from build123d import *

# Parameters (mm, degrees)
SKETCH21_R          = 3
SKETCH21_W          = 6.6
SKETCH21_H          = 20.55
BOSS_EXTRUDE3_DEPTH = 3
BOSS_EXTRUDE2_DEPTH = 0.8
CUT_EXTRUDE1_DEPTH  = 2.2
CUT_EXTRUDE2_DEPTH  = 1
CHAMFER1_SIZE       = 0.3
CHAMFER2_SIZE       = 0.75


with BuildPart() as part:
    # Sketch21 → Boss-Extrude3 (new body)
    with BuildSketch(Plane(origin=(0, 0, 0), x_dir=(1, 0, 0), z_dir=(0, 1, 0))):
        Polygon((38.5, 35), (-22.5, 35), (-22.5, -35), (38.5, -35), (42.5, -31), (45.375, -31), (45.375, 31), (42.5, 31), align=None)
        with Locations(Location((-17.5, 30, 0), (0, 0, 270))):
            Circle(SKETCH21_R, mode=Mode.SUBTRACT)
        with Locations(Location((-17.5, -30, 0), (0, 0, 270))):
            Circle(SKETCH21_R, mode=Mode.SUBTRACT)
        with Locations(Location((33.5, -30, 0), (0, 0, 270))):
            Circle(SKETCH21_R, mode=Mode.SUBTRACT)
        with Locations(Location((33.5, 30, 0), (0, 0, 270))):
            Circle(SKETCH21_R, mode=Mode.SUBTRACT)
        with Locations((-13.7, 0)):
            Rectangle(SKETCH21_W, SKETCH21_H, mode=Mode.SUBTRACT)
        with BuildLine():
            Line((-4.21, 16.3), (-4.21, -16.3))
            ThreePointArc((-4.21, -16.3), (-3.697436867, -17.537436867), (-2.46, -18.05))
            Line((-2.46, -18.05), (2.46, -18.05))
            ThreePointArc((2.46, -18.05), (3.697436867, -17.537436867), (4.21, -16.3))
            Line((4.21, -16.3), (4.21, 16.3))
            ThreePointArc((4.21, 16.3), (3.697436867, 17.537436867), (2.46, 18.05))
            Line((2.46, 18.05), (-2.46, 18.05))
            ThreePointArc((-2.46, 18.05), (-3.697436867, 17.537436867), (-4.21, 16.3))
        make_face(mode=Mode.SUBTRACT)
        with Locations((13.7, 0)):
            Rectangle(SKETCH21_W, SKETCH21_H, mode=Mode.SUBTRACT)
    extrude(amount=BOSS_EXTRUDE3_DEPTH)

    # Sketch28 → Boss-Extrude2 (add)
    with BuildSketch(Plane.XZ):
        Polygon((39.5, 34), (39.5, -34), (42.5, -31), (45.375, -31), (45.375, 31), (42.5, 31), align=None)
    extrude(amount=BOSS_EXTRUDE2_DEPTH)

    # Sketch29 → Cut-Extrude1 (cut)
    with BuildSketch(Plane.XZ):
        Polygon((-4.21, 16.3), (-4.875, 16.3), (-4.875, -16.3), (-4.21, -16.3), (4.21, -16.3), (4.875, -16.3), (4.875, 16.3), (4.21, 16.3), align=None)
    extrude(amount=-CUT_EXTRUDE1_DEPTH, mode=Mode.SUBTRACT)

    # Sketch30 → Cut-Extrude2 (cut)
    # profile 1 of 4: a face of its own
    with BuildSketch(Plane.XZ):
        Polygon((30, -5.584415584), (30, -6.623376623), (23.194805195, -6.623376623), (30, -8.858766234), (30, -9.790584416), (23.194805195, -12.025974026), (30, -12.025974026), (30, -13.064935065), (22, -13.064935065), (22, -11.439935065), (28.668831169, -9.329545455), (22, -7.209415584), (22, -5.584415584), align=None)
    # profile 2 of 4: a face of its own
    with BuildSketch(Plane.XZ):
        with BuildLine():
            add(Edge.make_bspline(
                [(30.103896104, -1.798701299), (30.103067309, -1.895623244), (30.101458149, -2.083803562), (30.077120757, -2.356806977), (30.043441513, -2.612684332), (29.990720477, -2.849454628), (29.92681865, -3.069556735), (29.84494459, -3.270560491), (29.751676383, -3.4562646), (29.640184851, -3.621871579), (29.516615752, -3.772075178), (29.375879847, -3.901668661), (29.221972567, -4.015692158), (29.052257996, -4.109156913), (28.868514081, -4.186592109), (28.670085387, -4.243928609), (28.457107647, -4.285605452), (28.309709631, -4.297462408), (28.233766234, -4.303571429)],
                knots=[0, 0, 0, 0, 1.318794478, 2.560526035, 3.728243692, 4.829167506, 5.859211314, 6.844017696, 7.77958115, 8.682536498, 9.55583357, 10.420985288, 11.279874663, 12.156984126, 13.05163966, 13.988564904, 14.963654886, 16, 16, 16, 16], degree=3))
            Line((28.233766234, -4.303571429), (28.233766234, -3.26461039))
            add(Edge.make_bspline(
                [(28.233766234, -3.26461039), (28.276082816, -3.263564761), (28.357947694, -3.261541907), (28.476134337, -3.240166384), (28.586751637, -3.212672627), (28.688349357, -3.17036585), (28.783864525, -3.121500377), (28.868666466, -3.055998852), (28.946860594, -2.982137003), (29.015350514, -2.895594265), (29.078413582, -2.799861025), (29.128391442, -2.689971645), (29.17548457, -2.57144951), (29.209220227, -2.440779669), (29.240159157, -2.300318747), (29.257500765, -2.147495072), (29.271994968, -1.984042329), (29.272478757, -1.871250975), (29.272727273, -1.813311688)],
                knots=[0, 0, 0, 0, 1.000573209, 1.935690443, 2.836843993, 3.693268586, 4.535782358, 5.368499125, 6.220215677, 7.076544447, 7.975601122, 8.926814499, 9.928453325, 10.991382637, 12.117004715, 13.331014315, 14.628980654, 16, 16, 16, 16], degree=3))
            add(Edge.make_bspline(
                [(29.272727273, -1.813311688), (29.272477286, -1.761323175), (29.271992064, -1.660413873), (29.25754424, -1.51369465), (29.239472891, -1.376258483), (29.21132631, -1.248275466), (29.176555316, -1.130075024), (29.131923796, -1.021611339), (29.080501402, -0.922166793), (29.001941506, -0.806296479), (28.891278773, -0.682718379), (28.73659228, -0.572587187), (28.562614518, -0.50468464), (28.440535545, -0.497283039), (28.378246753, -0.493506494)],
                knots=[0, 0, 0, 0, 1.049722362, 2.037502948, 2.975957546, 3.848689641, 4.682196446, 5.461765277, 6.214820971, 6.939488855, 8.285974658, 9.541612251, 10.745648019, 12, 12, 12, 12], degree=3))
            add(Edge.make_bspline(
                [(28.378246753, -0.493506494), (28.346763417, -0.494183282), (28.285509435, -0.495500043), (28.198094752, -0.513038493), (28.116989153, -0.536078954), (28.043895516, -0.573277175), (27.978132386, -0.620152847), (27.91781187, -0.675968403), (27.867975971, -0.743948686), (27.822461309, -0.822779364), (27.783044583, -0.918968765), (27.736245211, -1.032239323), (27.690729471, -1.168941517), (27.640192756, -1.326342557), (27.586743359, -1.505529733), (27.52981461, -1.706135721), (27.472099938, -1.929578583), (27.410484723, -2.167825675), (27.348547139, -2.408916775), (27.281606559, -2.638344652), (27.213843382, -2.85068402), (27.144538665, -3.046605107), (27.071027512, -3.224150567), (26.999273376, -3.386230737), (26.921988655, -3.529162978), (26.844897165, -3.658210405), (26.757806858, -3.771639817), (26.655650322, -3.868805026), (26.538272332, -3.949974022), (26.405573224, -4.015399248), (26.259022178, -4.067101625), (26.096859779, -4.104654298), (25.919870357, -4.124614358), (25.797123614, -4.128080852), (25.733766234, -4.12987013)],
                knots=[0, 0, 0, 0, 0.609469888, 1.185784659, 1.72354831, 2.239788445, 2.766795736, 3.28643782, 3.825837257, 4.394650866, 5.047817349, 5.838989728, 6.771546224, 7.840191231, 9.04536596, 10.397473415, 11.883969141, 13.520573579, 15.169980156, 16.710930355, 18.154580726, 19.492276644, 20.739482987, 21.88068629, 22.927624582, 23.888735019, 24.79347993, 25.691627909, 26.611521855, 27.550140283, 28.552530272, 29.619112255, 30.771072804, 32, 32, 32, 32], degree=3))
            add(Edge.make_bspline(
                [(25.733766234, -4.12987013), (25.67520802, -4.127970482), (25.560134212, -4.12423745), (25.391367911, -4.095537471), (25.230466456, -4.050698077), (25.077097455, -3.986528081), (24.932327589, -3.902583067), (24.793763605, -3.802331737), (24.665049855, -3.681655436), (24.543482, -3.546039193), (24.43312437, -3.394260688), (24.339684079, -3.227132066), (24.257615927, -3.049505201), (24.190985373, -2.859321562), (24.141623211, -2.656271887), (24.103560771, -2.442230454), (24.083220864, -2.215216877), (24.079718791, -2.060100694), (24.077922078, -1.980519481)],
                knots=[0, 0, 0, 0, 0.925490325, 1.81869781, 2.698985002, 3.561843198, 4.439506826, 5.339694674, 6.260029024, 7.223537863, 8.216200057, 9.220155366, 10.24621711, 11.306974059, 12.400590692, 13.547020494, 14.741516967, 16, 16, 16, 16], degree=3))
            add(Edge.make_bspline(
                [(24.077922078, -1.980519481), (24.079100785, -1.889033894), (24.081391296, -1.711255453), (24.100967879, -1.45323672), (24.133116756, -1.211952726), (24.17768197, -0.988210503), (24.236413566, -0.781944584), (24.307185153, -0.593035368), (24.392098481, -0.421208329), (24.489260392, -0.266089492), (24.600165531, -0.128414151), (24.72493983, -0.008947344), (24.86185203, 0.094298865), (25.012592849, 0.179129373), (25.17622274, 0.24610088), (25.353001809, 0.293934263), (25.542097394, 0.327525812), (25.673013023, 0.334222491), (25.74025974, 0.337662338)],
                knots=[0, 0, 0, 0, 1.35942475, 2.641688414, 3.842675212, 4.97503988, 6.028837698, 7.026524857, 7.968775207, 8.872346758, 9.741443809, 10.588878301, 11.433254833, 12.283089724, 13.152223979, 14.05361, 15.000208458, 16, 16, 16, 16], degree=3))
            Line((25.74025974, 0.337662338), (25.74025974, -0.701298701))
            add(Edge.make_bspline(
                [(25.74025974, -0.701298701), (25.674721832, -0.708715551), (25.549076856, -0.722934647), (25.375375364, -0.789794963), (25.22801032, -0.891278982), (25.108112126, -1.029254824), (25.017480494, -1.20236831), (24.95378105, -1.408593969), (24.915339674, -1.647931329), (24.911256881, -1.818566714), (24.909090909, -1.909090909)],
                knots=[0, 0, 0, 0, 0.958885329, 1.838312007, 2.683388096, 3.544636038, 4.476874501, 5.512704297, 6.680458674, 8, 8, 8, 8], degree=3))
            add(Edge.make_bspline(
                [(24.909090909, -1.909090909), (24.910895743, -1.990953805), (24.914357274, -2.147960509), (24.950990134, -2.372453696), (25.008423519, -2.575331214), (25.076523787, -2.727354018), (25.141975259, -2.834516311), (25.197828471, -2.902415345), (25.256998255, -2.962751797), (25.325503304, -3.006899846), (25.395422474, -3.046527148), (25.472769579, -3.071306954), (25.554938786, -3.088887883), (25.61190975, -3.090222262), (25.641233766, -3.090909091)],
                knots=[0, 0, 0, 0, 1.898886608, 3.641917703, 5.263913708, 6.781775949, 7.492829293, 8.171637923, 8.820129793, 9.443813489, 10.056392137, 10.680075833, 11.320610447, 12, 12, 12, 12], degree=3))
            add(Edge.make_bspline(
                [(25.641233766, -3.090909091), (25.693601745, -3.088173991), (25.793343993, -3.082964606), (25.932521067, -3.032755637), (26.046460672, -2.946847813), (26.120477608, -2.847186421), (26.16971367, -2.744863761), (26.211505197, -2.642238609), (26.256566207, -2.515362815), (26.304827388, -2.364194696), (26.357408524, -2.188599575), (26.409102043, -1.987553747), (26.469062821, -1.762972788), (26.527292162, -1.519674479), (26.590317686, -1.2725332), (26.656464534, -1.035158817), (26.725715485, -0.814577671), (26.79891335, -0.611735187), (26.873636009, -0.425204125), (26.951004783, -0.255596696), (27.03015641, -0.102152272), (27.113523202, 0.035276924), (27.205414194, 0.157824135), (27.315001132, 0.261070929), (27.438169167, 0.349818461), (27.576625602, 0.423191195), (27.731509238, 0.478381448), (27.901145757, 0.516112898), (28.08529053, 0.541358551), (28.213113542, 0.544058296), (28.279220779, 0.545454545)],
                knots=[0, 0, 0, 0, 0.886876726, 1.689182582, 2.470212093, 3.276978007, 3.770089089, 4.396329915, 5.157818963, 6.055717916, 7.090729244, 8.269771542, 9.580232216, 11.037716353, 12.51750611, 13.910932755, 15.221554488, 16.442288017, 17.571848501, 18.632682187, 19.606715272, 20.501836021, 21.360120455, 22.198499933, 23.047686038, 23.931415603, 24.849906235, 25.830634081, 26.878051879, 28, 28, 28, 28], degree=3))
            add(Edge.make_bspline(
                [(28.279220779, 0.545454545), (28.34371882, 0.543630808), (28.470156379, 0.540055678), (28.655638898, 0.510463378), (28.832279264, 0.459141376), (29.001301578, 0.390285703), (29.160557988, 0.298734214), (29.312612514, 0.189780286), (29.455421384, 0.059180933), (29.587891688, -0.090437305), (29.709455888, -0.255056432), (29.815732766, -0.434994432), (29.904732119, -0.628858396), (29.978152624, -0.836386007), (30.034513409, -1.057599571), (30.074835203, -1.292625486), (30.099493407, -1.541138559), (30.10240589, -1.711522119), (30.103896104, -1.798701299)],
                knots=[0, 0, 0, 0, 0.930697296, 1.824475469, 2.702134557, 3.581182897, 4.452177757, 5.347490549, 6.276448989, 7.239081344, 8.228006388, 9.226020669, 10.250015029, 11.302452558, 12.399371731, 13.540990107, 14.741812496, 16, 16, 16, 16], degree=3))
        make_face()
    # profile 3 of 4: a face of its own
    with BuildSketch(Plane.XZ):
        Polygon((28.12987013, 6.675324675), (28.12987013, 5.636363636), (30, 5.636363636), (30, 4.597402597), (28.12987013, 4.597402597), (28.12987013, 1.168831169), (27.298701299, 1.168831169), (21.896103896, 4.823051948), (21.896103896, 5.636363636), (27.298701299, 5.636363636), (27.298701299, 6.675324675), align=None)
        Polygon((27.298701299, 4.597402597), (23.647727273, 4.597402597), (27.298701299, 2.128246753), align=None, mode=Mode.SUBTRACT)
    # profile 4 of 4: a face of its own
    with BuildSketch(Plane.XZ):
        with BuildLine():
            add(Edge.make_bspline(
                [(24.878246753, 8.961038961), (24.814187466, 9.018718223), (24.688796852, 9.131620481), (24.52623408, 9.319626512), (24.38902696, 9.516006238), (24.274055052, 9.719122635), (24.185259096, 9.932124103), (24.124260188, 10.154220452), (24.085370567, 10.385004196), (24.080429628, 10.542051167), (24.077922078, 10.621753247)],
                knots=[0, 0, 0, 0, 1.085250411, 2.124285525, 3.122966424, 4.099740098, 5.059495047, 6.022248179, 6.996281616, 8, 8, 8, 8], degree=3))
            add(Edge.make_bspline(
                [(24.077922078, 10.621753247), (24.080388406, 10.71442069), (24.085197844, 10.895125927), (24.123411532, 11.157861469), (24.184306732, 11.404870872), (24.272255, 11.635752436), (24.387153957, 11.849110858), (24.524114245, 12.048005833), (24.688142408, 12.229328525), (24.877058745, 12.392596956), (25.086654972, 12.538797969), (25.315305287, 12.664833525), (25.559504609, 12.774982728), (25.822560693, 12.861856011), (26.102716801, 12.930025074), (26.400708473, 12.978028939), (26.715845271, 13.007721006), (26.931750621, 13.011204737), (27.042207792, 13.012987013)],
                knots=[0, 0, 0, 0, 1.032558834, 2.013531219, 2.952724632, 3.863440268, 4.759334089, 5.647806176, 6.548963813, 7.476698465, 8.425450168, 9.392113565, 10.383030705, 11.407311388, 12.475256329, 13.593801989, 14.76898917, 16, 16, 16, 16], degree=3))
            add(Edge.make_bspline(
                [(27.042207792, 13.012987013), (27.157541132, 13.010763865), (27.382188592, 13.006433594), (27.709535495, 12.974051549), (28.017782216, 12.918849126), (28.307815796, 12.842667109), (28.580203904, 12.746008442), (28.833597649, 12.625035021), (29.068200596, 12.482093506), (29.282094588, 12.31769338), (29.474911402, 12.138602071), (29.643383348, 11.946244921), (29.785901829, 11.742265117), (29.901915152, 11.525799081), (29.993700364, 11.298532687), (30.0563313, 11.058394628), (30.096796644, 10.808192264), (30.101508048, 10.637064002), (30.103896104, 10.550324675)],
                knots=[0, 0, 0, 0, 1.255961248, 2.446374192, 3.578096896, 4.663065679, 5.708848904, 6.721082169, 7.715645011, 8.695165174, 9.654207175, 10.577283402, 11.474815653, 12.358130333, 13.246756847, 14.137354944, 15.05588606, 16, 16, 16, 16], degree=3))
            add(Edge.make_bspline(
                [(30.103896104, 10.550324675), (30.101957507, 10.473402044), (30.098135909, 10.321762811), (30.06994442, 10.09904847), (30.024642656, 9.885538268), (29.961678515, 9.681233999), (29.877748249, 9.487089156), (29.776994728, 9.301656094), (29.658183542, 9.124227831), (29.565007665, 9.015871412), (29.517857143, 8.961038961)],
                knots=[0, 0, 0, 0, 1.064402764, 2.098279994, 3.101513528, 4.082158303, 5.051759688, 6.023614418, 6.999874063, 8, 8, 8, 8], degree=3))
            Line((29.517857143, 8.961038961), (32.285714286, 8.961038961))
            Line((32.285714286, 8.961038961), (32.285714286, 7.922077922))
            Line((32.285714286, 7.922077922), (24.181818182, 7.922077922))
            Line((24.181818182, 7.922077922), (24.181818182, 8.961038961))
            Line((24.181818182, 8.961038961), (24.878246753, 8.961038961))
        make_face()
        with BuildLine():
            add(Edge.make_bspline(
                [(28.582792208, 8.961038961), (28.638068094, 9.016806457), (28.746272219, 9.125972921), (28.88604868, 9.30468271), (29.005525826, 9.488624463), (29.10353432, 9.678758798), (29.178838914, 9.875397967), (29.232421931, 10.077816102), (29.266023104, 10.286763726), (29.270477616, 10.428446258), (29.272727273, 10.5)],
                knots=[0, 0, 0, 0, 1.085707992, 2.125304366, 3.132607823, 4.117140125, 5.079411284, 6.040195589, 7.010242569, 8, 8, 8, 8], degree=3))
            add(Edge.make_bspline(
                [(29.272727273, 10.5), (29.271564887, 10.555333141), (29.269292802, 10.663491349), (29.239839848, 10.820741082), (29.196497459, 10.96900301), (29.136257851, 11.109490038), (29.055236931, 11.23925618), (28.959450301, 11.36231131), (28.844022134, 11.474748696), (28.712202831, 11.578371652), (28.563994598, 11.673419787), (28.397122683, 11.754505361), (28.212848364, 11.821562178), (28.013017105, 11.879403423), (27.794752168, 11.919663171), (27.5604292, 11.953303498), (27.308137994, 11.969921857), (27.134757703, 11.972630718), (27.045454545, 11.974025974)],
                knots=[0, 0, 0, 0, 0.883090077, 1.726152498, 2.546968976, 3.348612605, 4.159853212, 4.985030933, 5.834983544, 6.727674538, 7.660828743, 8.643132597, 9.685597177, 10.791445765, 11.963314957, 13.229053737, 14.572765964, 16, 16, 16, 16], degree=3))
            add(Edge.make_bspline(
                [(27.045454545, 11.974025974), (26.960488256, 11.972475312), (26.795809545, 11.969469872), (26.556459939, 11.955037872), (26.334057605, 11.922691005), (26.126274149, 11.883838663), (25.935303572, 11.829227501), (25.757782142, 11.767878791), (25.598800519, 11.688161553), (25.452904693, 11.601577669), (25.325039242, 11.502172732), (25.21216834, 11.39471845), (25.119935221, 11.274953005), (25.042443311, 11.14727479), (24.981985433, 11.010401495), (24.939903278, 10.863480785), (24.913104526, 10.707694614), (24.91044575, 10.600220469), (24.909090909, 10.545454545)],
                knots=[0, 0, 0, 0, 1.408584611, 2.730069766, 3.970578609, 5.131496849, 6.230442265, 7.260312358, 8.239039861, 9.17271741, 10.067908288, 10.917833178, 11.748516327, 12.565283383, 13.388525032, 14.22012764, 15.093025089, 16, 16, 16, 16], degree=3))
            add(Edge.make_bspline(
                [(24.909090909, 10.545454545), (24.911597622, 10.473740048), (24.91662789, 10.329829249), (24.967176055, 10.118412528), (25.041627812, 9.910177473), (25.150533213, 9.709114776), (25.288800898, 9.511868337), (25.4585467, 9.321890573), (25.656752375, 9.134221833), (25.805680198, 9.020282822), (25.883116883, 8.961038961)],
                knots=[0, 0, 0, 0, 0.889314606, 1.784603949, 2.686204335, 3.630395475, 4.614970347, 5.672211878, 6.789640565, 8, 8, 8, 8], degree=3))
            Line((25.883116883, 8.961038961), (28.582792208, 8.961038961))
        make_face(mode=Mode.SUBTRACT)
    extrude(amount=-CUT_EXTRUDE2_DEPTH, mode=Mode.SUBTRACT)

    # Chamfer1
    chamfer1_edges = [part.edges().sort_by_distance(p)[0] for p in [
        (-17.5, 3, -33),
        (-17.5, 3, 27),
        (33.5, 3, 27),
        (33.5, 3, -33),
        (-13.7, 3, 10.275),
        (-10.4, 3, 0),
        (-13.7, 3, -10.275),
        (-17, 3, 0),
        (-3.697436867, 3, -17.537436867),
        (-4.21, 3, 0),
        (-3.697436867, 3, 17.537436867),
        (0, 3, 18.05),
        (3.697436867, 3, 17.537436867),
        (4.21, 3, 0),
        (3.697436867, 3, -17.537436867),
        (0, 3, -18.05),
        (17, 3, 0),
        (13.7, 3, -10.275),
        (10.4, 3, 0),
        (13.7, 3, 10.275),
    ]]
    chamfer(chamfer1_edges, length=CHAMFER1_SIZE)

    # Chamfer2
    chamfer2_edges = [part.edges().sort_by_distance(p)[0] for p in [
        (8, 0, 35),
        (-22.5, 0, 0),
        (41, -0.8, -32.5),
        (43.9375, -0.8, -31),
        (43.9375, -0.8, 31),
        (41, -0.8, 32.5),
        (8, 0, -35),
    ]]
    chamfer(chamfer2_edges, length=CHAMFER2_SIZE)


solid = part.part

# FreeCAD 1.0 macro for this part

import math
import FreeCAD as App
import Part
import Sketcher


def edges_at(feature, points):
    """Names of the edges that pass closest to the given points."""
    edges = feature.Shape.Edges
    near = lambda p: min(range(len(edges)), key=lambda i: edges[i].distToShape(Part.Vertex(*p))[0])
    return sorted({f"Edge{near(p) + 1}" for p in points})


def add_polygon(sketch, points):
    """Adds a closed chain of lines whose ends are joined by coincident constraints."""
    first, n = sketch.GeometryCount, len(points)
    for a, b in zip(points, points[1:] + points[:1]):
        sketch.addGeometry(Part.LineSegment(App.Vector(*a, 0), App.Vector(*b, 0)), False)
    for i in range(n):
        sketch.addConstraint(Sketcher.Constraint("Coincident", first + i, 2, first + (i + 1) % n, 1))

doc = App.newDocument("Part")
params = doc.addObject("Spreadsheet::Sheet", "Params")
for row, (alias, value) in enumerate([
    ("sketch1_diameter", "6 mm"),
    ("sketch1_width", "61 mm"),
    ("sketch1_height", "70 mm"),
    ("sketch1_height2", "62 mm"),
    ("sketch1_radius", "1.75 mm"),
    ("pad1_length", "3 mm"),
    ("sketch2_height", "68 mm"),
    ("sketch2_height2", "62 mm"),
    ("pad2_length", "0.8 mm"),
    ("sketch3_height", "32.6 mm"),
    ("sketch3_width", "9.75 mm"),
    ("pocket1_length", "2.2 mm"),
    ("sketch4_width", "8 mm"),
    ("pocket2_length", "1 mm"),
    ("chamfer_size", "0.3 mm"),
    ("chamfer2_size", "0.75 mm"),
], start=1):
    params.set(f"A{row}", alias)
    params.set(f"B{row}", "=" + value)
    params.setAlias(f"B{row}", alias)

body = doc.addObject("PartDesign::Body", "Body")

# Sketch on XZ plane
sketch1 = doc.addObject("Sketcher::SketchObject", "Sketch")
body.addObject(sketch1)
sketch1.AttachmentSupport = (doc.XZ_Plane, [""])
sketch1.MapMode = "FlatFace"
add_polygon(sketch1, [(38.5, -35), (-22.5, -35), (-22.5, 35), (38.5, 35), (42.5, 31), (45.375, 31), (45.375, -31), (42.5, -31)])  # lines 0-7
sketch1.addGeometry(Part.Circle(App.Vector(-17.5, 30, 0), App.Vector(0, 0, 1), 3), False)  # 8
sketch1.addGeometry(Part.Circle(App.Vector(33.5, 30, 0), App.Vector(0, 0, 1), 3), False)  # 9
add_polygon(sketch1, [(-10.4, 10.275), (-17, 10.275), (-17, -10.275), (-10.4, -10.275)])  # lines 10-13
sketch1.addGeometry(Part.LineSegment(App.Vector(-4.21, 16.3, 0), App.Vector(-4.21, -16.3, 0)), False)  # 14
sketch1.addGeometry(Part.ArcOfCircle(Part.Circle(App.Vector(-2.46, -16.3, 0), App.Vector(0, 0, 1), 1.75), math.radians(180), math.radians(270)), False)  # 15
sketch1.addGeometry(Part.LineSegment(App.Vector(-2.46, -18.05, 0), App.Vector(2.46, -18.05, 0)), False)  # 16
sketch1.addGeometry(Part.ArcOfCircle(Part.Circle(App.Vector(2.46, -16.3, 0), App.Vector(0, 0, 1), 1.75), math.radians(-90), math.radians(0)), False)  # 17
sketch1.addGeometry(Part.LineSegment(App.Vector(4.21, -16.3, 0), App.Vector(4.21, 16.3, 0)), False)  # 18
sketch1.addGeometry(Part.ArcOfCircle(Part.Circle(App.Vector(2.46, 16.3, 0), App.Vector(0, 0, 1), 1.75), math.radians(0), math.radians(90)), False)  # 19
sketch1.addGeometry(Part.LineSegment(App.Vector(2.46, 18.05, 0), App.Vector(-2.46, 18.05, 0)), False)  # 20
sketch1.addGeometry(Part.ArcOfCircle(Part.Circle(App.Vector(-2.46, 16.3, 0), App.Vector(0, 0, 1), 1.75), math.radians(90), math.radians(180)), False)  # 21
sketch1.addGeometry(Part.Circle(App.Vector(-17.5, -30, 0), App.Vector(0, 0, 1), 3), False)  # 22
add_polygon(sketch1, [(17, 10.275), (10.4, 10.275), (10.4, -10.275), (17, -10.275)])  # lines 23-26
sketch1.addGeometry(Part.Circle(App.Vector(33.5, -30, 0), App.Vector(0, 0, 1), 3), False)  # 27
sketch1.addConstraint([
    Sketcher.Constraint("Tangent", 14, 2, 15, 1),
    Sketcher.Constraint("Tangent", 15, 2, 16, 1),
    Sketcher.Constraint("Tangent", 16, 2, 17, 1),
    Sketcher.Constraint("Tangent", 17, 2, 18, 1),
    Sketcher.Constraint("Tangent", 18, 2, 19, 1),
    Sketcher.Constraint("Tangent", 19, 2, 20, 1),
    Sketcher.Constraint("Tangent", 20, 2, 21, 1),
    Sketcher.Constraint("Tangent", 21, 2, 14, 1),
    Sketcher.Constraint("Horizontal", 0),
    Sketcher.Constraint("Vertical", 1),
    Sketcher.Constraint("Horizontal", 2),
    Sketcher.Constraint("Horizontal", 4),
    Sketcher.Constraint("Vertical", 5),
    Sketcher.Constraint("Horizontal", 6),
    Sketcher.Constraint("Horizontal", 10),
    Sketcher.Constraint("Vertical", 11),
    Sketcher.Constraint("Horizontal", 12),
    Sketcher.Constraint("Vertical", 13),
    Sketcher.Constraint("Vertical", 14),
    Sketcher.Constraint("Horizontal", 16),
    Sketcher.Constraint("Vertical", 18),
    Sketcher.Constraint("Horizontal", 20),
    Sketcher.Constraint("Horizontal", 23),
    Sketcher.Constraint("Vertical", 24),
    Sketcher.Constraint("Horizontal", 25),
    Sketcher.Constraint("Vertical", 26),
    Sketcher.Constraint("Equal", 8, 9),
    Sketcher.Constraint("Equal", 15, 17),
    Sketcher.Constraint("Equal", 17, 19),
    Sketcher.Constraint("Equal", 19, 21),
    Sketcher.Constraint("Equal", 9, 22),
    Sketcher.Constraint("Equal", 22, 27),
    Sketcher.Constraint("Symmetric", 15, 3, 19, 3, -1, 1),
    Sketcher.Constraint("Symmetric", 12, 2, 23, 2, -1, 1),
    Sketcher.Constraint("Symmetric", 10, 2, 25, 2, -1, 1),
    Sketcher.Constraint("Symmetric", 8, 3, 22, 3, -1),
    Sketcher.Constraint("Symmetric", 9, 3, 27, 3, -1),
    Sketcher.Constraint("Symmetric", 3, 2, 6, 2, -1),
    Sketcher.Constraint("Symmetric", 2, 2, 7, 2, -1),
    Sketcher.Constraint("Perpendicular", 3, 7),
    Sketcher.Constraint("Horizontal", 8, 3, 9, 3),
    Sketcher.Constraint("Horizontal", 13, 2, 23, 2),
    Sketcher.Constraint("Diameter", 8, 6.0),
    Sketcher.Constraint("DistanceX", 0, 2, 0, 1, 61.0),
    Sketcher.Constraint("DistanceY", 1, 1, 1, 2, 70.0),
    Sketcher.Constraint("DistanceY", 5, 2, 5, 1, 62.0),
    Sketcher.Constraint("Radius", 15, 1.75),
    Sketcher.Constraint("DistanceX", 10, 2, 10, 1, 6.6),
    Sketcher.Constraint("DistanceY", 14, 2, 14, 1, 32.6),
    Sketcher.Constraint("DistanceY", -1, 1, 8, 3, 30.0),
    Sketcher.Constraint("DistanceX", 10, 2, -1, 1, 17.0),
    Sketcher.Constraint("DistanceX", 8, 3, 9, 3, 51.0),
    Sketcher.Constraint("DistanceX", 0, 2, 22, 3, 5.0),
    Sketcher.Constraint("DistanceX", 16, 1, 16, 2, 4.92),
    Sketcher.Constraint("DistanceY", 11, 2, 11, 1, 20.55),
    Sketcher.Constraint("DistanceX", 8, 3, -1, 1, 17.5),
    Sketcher.Constraint("DistanceX", 4, 1, 4, 2, 2.875),
])
sketch1.setExpression("Constraints[58]", "Params.sketch1_diameter")
sketch1.setExpression("Constraints[59]", "Params.sketch1_width")
sketch1.setExpression("Constraints[60]", "Params.sketch1_height")
sketch1.setExpression("Constraints[61]", "Params.sketch1_height2")
sketch1.setExpression("Constraints[62]", "Params.sketch1_radius")
pad1 = doc.addObject("PartDesign::Pad", "Pad")
body.addObject(pad1)
pad1.Profile = sketch1
pad1.setExpression("Length", "Params.pad1_length")
pad1.Reversed = True

# Sketch on XZ plane
sketch2 = doc.addObject("Sketcher::SketchObject", "Sketch001")
body.addObject(sketch2)
sketch2.AttachmentSupport = (doc.XZ_Plane, [""])
sketch2.MapMode = "FlatFace"
add_polygon(sketch2, [(39.5, 34), (39.5, -34), (42.5, -31), (45.375, -31), (45.375, 31), (42.5, 31)])  # lines 0-5
sketch2.addConstraint([
    Sketcher.Constraint("Vertical", 0),
    Sketcher.Constraint("Horizontal", 2),
    Sketcher.Constraint("Vertical", 3),
    Sketcher.Constraint("Horizontal", 4),
    Sketcher.Constraint("Symmetric", 1, 2, 4, 2, -1),
    Sketcher.Constraint("Perpendicular", 1, 5),
    Sketcher.Constraint("Equal", 1, 5),
    Sketcher.Constraint("DistanceY", 0, 2, 0, 1, 68.0),
    Sketcher.Constraint("DistanceY", 3, 1, 3, 2, 62.0),
    Sketcher.Constraint("DistanceX", -1, 1, 0, 2, 39.5),
    Sketcher.Constraint("DistanceX", 2, 1, 2, 2, 2.875),
])
sketch2.setExpression("Constraints[13]", "Params.sketch2_height")
sketch2.setExpression("Constraints[14]", "Params.sketch2_height2")
pad2 = doc.addObject("PartDesign::Pad", "Pad001")
body.addObject(pad2)
pad2.Profile = sketch2
pad2.setExpression("Length", "Params.pad2_length")

# Sketch on XZ plane
sketch3 = doc.addObject("Sketcher::SketchObject", "Sketch002")
body.addObject(sketch3)
sketch3.AttachmentSupport = (doc.XZ_Plane, [""])
sketch3.MapMode = "FlatFace"
add_polygon(sketch3, [(-4.875, 16.3), (-4.875, -16.3), (4.875, -16.3), (4.875, 16.3)])  # lines 0-3
sketch3.addConstraint([
    Sketcher.Constraint("Vertical", 0),
    Sketcher.Constraint("Horizontal", 1),
    Sketcher.Constraint("Vertical", 2),
    Sketcher.Constraint("Horizontal", 3),
    Sketcher.Constraint("Symmetric", 0, 2, 2, 2, -1, 1),
    Sketcher.Constraint("DistanceY", 0, 2, 0, 1, 32.6),
    Sketcher.Constraint("DistanceX", 1, 1, 1, 2, 9.75),
])
sketch3.setExpression("Constraints[9]", "Params.sketch3_height")
sketch3.setExpression("Constraints[10]", "Params.sketch3_width")
pocket1 = doc.addObject("PartDesign::Pocket", "Pocket")
body.addObject(pocket1)
pocket1.Profile = sketch3
pocket1.setExpression("Length", "Params.pocket1_length")

# Sketch on XZ plane
sketch4 = doc.addObject("Sketcher::SketchObject", "Sketch003")
body.addObject(sketch4)
sketch4.AttachmentSupport = (doc.XZ_Plane, [""])
sketch4.MapMode = "FlatFace"
add_polygon(sketch4, [(30, -6.623377), (30, -5.584416), (22, -5.584416), (22, -7.209416), (28.668831, -9.329545), (22, -11.439935), (22, -13.064935), (30, -13.064935), (30, -12.025974), (23.194805, -12.025974), (30, -9.790584), (30, -8.858766), (23.194805, -6.623377)])  # lines 0-12
sketch4.addGeometry(Part.BSplineCurve([App.Vector(30.103896, -1.798701, 0), App.Vector(30.103067, -1.895623, 0), App.Vector(30.101458, -2.083804, 0), App.Vector(30.077121, -2.356807, 0), App.Vector(30.043442, -2.612684, 0), App.Vector(29.99072, -2.849455, 0), App.Vector(29.926819, -3.069557, 0), App.Vector(29.844945, -3.27056, 0), App.Vector(29.751676, -3.456265, 0), App.Vector(29.640185, -3.621872, 0), App.Vector(29.516616, -3.772075, 0), App.Vector(29.37588, -3.901669, 0), App.Vector(29.221973, -4.015692, 0), App.Vector(29.052258, -4.109157, 0), App.Vector(28.868514, -4.186592, 0), App.Vector(28.670085, -4.243929, 0), App.Vector(28.457108, -4.285605, 0), App.Vector(28.30971, -4.297462, 0), App.Vector(28.233766, -4.303571, 0)], [4, 1, 1, 1, 1, 1, 1, 1, 1, 1, 1, 1, 1, 1, 1, 1, 4], [0, 1.318794478, 2.560526035, 3.728243692, 4.829167506, 5.859211314, 6.844017696, 7.77958115, 8.682536498, 9.55583357, 10.420985288, 11.279874663, 12.156984126, 13.05163966, 13.988564904, 14.963654886, 16], False, 3, [1, 1, 1, 1, 1, 1, 1, 1, 1, 1, 1, 1, 1, 1, 1, 1, 1, 1, 1], False), False)  # 13
sketch4.addGeometry(Part.BSplineCurve([App.Vector(28.279221, 0.545455, 0), App.Vector(28.343719, 0.543631, 0), App.Vector(28.470156, 0.540056, 0), App.Vector(28.655639, 0.510463, 0), App.Vector(28.832279, 0.459141, 0), App.Vector(29.001302, 0.390286, 0), App.Vector(29.160558, 0.298734, 0), App.Vector(29.312613, 0.18978, 0), App.Vector(29.455421, 0.059181, 0), App.Vector(29.587892, -0.090437, 0), App.Vector(29.709456, -0.255056, 0), App.Vector(29.815733, -0.434994, 0), App.Vector(29.904732, -0.628858, 0), App.Vector(29.978153, -0.836386, 0), App.Vector(30.034513, -1.0576, 0), App.Vector(30.074835, -1.292625, 0), App.Vector(30.099493, -1.541139, 0), App.Vector(30.102406, -1.711522, 0), App.Vector(30.103896, -1.798701, 0)], [4, 1, 1, 1, 1, 1, 1, 1, 1, 1, 1, 1, 1, 1, 1, 1, 4], [0, 0.930697296, 1.824475469, 2.702134557, 3.581182897, 4.452177757, 5.347490549, 6.276448989, 7.239081344, 8.228006388, 9.226020669, 10.250015029, 11.302452558, 12.399371731, 13.540990107, 14.741812496, 16], False, 3, [1, 1, 1, 1, 1, 1, 1, 1, 1, 1, 1, 1, 1, 1, 1, 1, 1, 1, 1], False), False)  # 14
sketch4.addGeometry(Part.BSplineCurve([App.Vector(25.641234, -3.090909, 0), App.Vector(25.693602, -3.088174, 0), App.Vector(25.793344, -3.082965, 0), App.Vector(25.932521, -3.032756, 0), App.Vector(26.046461, -2.946848, 0), App.Vector(26.120478, -2.847186, 0), App.Vector(26.169714, -2.744864, 0), App.Vector(26.211505, -2.642239, 0), App.Vector(26.256566, -2.515363, 0), App.Vector(26.304827, -2.364195, 0), App.Vector(26.357409, -2.1886, 0), App.Vector(26.409102, -1.987554, 0), App.Vector(26.469063, -1.762973, 0), App.Vector(26.527292, -1.519674, 0), App.Vector(26.590318, -1.272533, 0), App.Vector(26.656465, -1.035159, 0), App.Vector(26.725715, -0.814578, 0), App.Vector(26.798913, -0.611735, 0), App.Vector(26.873636, -0.425204, 0), App.Vector(26.951005, -0.255597, 0), App.Vector(27.030156, -0.102152, 0), App.Vector(27.113523, 0.035277, 0), App.Vector(27.205414, 0.157824, 0), App.Vector(27.315001, 0.261071, 0), App.Vector(27.438169, 0.349818, 0), App.Vector(27.576626, 0.423191, 0), App.Vector(27.731509, 0.478381, 0), App.Vector(27.901146, 0.516113, 0), App.Vector(28.085291, 0.541359, 0), App.Vector(28.213114, 0.544058, 0), App.Vector(28.279221, 0.545455, 0)], [4, 1, 1, 1, 1, 1, 1, 1, 1, 1, 1, 1, 1, 1, 1, 1, 1, 1, 1, 1, 1, 1, 1, 1, 1, 1, 1, 1, 4], [0, 0.886876726, 1.689182582, 2.470212093, 3.276978007, 3.770089089, 4.396329915, 5.157818963, 6.055717916, 7.090729244, 8.269771542, 9.580232216, 11.037716353, 12.51750611, 13.910932755, 15.221554488, 16.442288017, 17.571848501, 18.632682187, 19.606715272, 20.501836021, 21.360120455, 22.198499933, 23.047686038, 23.931415603, 24.849906235, 25.830634081, 26.878051879, 28], False, 3, [1, 1, 1, 1, 1, 1, 1, 1, 1, 1, 1, 1, 1, 1, 1, 1, 1, 1, 1, 1, 1, 1, 1, 1, 1, 1, 1, 1, 1, 1, 1], False), False)  # 15
sketch4.addGeometry(Part.BSplineCurve([App.Vector(24.909091, -1.909091, 0), App.Vector(24.910896, -1.990954, 0), App.Vector(24.914357, -2.147961, 0), App.Vector(24.95099, -2.372454, 0), App.Vector(25.008424, -2.575331, 0), App.Vector(25.076524, -2.727354, 0), App.Vector(25.141975, -2.834516, 0), App.Vector(25.197828, -2.902415, 0), App.Vector(25.256998, -2.962752, 0), App.Vector(25.325503, -3.0069, 0), App.Vector(25.395422, -3.046527, 0), App.Vector(25.47277, -3.071307, 0), App.Vector(25.554939, -3.088888, 0), App.Vector(25.61191, -3.090222, 0), App.Vector(25.641234, -3.090909, 0)], [4, 1, 1, 1, 1, 1, 1, 1, 1, 1, 1, 1, 4], [0, 1.898886608, 3.641917703, 5.263913708, 6.781775949, 7.492829293, 8.171637923, 8.820129793, 9.443813489, 10.056392137, 10.680075833, 11.320610447, 12], False, 3, [1, 1, 1, 1, 1, 1, 1, 1, 1, 1, 1, 1, 1, 1, 1], False), False)  # 16
sketch4.addGeometry(Part.BSplineCurve([App.Vector(25.74026, -0.701299, 0), App.Vector(25.674722, -0.708716, 0), App.Vector(25.549077, -0.722935, 0), App.Vector(25.375375, -0.789795, 0), App.Vector(25.22801, -0.891279, 0), App.Vector(25.108112, -1.029255, 0), App.Vector(25.01748, -1.202368, 0), App.Vector(24.953781, -1.408594, 0), App.Vector(24.91534, -1.647931, 0), App.Vector(24.911257, -1.818567, 0), App.Vector(24.909091, -1.909091, 0)], [4, 1, 1, 1, 1, 1, 1, 1, 4], [0, 0.958885329, 1.838312007, 2.683388096, 3.544636038, 4.476874501, 5.512704297, 6.680458674, 8], False, 3, [1, 1, 1, 1, 1, 1, 1, 1, 1, 1, 1], False), False)  # 17
sketch4.addGeometry(Part.LineSegment(App.Vector(25.74026, -0.701299, 0), App.Vector(25.74026, 0.337662, 0)), False)  # 18
sketch4.addGeometry(Part.BSplineCurve([App.Vector(24.077922, -1.980519, 0), App.Vector(24.079101, -1.889034, 0), App.Vector(24.081391, -1.711255, 0), App.Vector(24.100968, -1.453237, 0), App.Vector(24.133117, -1.211953, 0), App.Vector(24.177682, -0.988211, 0), App.Vector(24.236414, -0.781945, 0), App.Vector(24.307185, -0.593035, 0), App.Vector(24.392098, -0.421208, 0), App.Vector(24.48926, -0.266089, 0), App.Vector(24.600166, -0.128414, 0), App.Vector(24.72494, -0.008947, 0), App.Vector(24.861852, 0.094299, 0), App.Vector(25.012593, 0.179129, 0), App.Vector(25.176223, 0.246101, 0), App.Vector(25.353002, 0.293934, 0), App.Vector(25.542097, 0.327526, 0), App.Vector(25.673013, 0.334222, 0), App.Vector(25.74026, 0.337662, 0)], [4, 1, 1, 1, 1, 1, 1, 1, 1, 1, 1, 1, 1, 1, 1, 1, 4], [0, 1.35942475, 2.641688414, 3.842675212, 4.97503988, 6.028837698, 7.026524857, 7.968775207, 8.872346758, 9.741443809, 10.588878301, 11.433254833, 12.283089724, 13.152223979, 14.05361, 15.000208458, 16], False, 3, [1, 1, 1, 1, 1, 1, 1, 1, 1, 1, 1, 1, 1, 1, 1, 1, 1, 1, 1], False), False)  # 19
sketch4.addGeometry(Part.BSplineCurve([App.Vector(25.733766, -4.12987, 0), App.Vector(25.675208, -4.12797, 0), App.Vector(25.560134, -4.124237, 0), App.Vector(25.391368, -4.095537, 0), App.Vector(25.230466, -4.050698, 0), App.Vector(25.077097, -3.986528, 0), App.Vector(24.932328, -3.902583, 0), App.Vector(24.793764, -3.802332, 0), App.Vector(24.66505, -3.681655, 0), App.Vector(24.543482, -3.546039, 0), App.Vector(24.433124, -3.394261, 0), App.Vector(24.339684, -3.227132, 0), App.Vector(24.257616, -3.049505, 0), App.Vector(24.190985, -2.859322, 0), App.Vector(24.141623, -2.656272, 0), App.Vector(24.103561, -2.44223, 0), App.Vector(24.083221, -2.215217, 0), App.Vector(24.079719, -2.060101, 0), App.Vector(24.077922, -1.980519, 0)], [4, 1, 1, 1, 1, 1, 1, 1, 1, 1, 1, 1, 1, 1, 1, 1, 4], [0, 0.925490325, 1.81869781, 2.698985002, 3.561843198, 4.439506826, 5.339694674, 6.260029024, 7.223537863, 8.216200057, 9.220155366, 10.24621711, 11.306974059, 12.400590692, 13.547020494, 14.741516967, 16], False, 3, [1, 1, 1, 1, 1, 1, 1, 1, 1, 1, 1, 1, 1, 1, 1, 1, 1, 1, 1], False), False)  # 20
sketch4.addGeometry(Part.BSplineCurve([App.Vector(28.378247, -0.493506, 0), App.Vector(28.346763, -0.494183, 0), App.Vector(28.285509, -0.4955, 0), App.Vector(28.198095, -0.513038, 0), App.Vector(28.116989, -0.536079, 0), App.Vector(28.043896, -0.573277, 0), App.Vector(27.978132, -0.620153, 0), App.Vector(27.917812, -0.675968, 0), App.Vector(27.867976, -0.743949, 0), App.Vector(27.822461, -0.822779, 0), App.Vector(27.783045, -0.918969, 0), App.Vector(27.736245, -1.032239, 0), App.Vector(27.690729, -1.168942, 0), App.Vector(27.640193, -1.326343, 0), App.Vector(27.586743, -1.50553, 0), App.Vector(27.529815, -1.706136, 0), App.Vector(27.4721, -1.929579, 0), App.Vector(27.410485, -2.167826, 0), App.Vector(27.348547, -2.408917, 0), App.Vector(27.281607, -2.638345, 0), App.Vector(27.213843, -2.850684, 0), App.Vector(27.144539, -3.046605, 0), App.Vector(27.071028, -3.224151, 0), App.Vector(26.999273, -3.386231, 0), App.Vector(26.921989, -3.529163, 0), App.Vector(26.844897, -3.65821, 0), App.Vector(26.757807, -3.77164, 0), App.Vector(26.65565, -3.868805, 0), App.Vector(26.538272, -3.949974, 0), App.Vector(26.405573, -4.015399, 0), App.Vector(26.259022, -4.067102, 0), App.Vector(26.09686, -4.104654, 0), App.Vector(25.91987, -4.124614, 0), App.Vector(25.797124, -4.128081, 0), App.Vector(25.733766, -4.12987, 0)], [4, 1, 1, 1, 1, 1, 1, 1, 1, 1, 1, 1, 1, 1, 1, 1, 1, 1, 1, 1, 1, 1, 1, 1, 1, 1, 1, 1, 1, 1, 1, 1, 4], [0, 0.609469888, 1.185784659, 1.72354831, 2.239788445, 2.766795736, 3.28643782, 3.825837257, 4.394650866, 5.047817349, 5.838989728, 6.771546224, 7.840191231, 9.04536596, 10.397473415, 11.883969141, 13.520573579, 15.169980156, 16.710930355, 18.154580726, 19.492276644, 20.739482987, 21.88068629, 22.927624582, 23.888735019, 24.79347993, 25.691627909, 26.611521855, 27.550140283, 28.552530272, 29.619112255, 30.771072804, 32], False, 3, [1, 1, 1, 1, 1, 1, 1, 1, 1, 1, 1, 1, 1, 1, 1, 1, 1, 1, 1, 1, 1, 1, 1, 1, 1, 1, 1, 1, 1, 1, 1, 1, 1, 1, 1], False), False)  # 21
sketch4.addGeometry(Part.BSplineCurve([App.Vector(29.272727, -1.813312, 0), App.Vector(29.272477, -1.761323, 0), App.Vector(29.271992, -1.660414, 0), App.Vector(29.257544, -1.513695, 0), App.Vector(29.239473, -1.376258, 0), App.Vector(29.211326, -1.248275, 0), App.Vector(29.176555, -1.130075, 0), App.Vector(29.131924, -1.021611, 0), App.Vector(29.080501, -0.922167, 0), App.Vector(29.001942, -0.806296, 0), App.Vector(28.891279, -0.682718, 0), App.Vector(28.736592, -0.572587, 0), App.Vector(28.562615, -0.504685, 0), App.Vector(28.440536, -0.497283, 0), App.Vector(28.378247, -0.493506, 0)], [4, 1, 1, 1, 1, 1, 1, 1, 1, 1, 1, 1, 4], [0, 1.049722362, 2.037502948, 2.975957546, 3.848689641, 4.682196446, 5.461765277, 6.214820971, 6.939488855, 8.285974658, 9.541612251, 10.745648019, 12], False, 3, [1, 1, 1, 1, 1, 1, 1, 1, 1, 1, 1, 1, 1, 1, 1], False), False)  # 22
sketch4.addGeometry(Part.BSplineCurve([App.Vector(28.233766, -3.26461, 0), App.Vector(28.276083, -3.263565, 0), App.Vector(28.357948, -3.261542, 0), App.Vector(28.476134, -3.240166, 0), App.Vector(28.586752, -3.212673, 0), App.Vector(28.688349, -3.170366, 0), App.Vector(28.783865, -3.1215, 0), App.Vector(28.868666, -3.055999, 0), App.Vector(28.946861, -2.982137, 0), App.Vector(29.015351, -2.895594, 0), App.Vector(29.078414, -2.799861, 0), App.Vector(29.128391, -2.689972, 0), App.Vector(29.175485, -2.57145, 0), App.Vector(29.20922, -2.44078, 0), App.Vector(29.240159, -2.300319, 0), App.Vector(29.257501, -2.147495, 0), App.Vector(29.271995, -1.984042, 0), App.Vector(29.272479, -1.871251, 0), App.Vector(29.272727, -1.813312, 0)], [4, 1, 1, 1, 1, 1, 1, 1, 1, 1, 1, 1, 1, 1, 1, 1, 4], [0, 1.000573209, 1.935690443, 2.836843993, 3.693268586, 4.535782358, 5.368499125, 6.220215677, 7.076544447, 7.975601122, 8.926814499, 9.928453325, 10.991382637, 12.117004715, 13.331014315, 14.628980654, 16], False, 3, [1, 1, 1, 1, 1, 1, 1, 1, 1, 1, 1, 1, 1, 1, 1, 1, 1, 1, 1], False), False)  # 23
sketch4.addGeometry(Part.LineSegment(App.Vector(28.233766, -3.26461, 0), App.Vector(28.233766, -4.303571, 0)), False)  # 24
add_polygon(sketch4, [(28.12987, 5.636364), (28.12987, 6.675325), (27.298701, 6.675325), (27.298701, 5.636364), (21.896104, 5.636364), (21.896104, 4.823052), (27.298701, 1.168831), (28.12987, 1.168831), (28.12987, 4.597403), (30, 4.597403), (30, 5.636364)])  # lines 25-35
add_polygon(sketch4, [(27.298701, 4.597403), (27.298701, 2.128247), (23.647727, 4.597403)])  # lines 36-38
sketch4.addGeometry(Part.BSplineCurve([App.Vector(24.878247, 8.961039, 0), App.Vector(24.814187, 9.018718, 0), App.Vector(24.688797, 9.13162, 0), App.Vector(24.526234, 9.319627, 0), App.Vector(24.389027, 9.516006, 0), App.Vector(24.274055, 9.719123, 0), App.Vector(24.185259, 9.932124, 0), App.Vector(24.12426, 10.15422, 0), App.Vector(24.085371, 10.385004, 0), App.Vector(24.08043, 10.542051, 0), App.Vector(24.077922, 10.621753, 0)], [4, 1, 1, 1, 1, 1, 1, 1, 4], [0, 1.085250411, 2.124285525, 3.122966424, 4.099740098, 5.059495047, 6.022248179, 6.996281616, 8], False, 3, [1, 1, 1, 1, 1, 1, 1, 1, 1, 1, 1], False), False)  # 39
sketch4.addGeometry(Part.LineSegment(App.Vector(24.878247, 8.961039, 0), App.Vector(24.181818, 8.961039, 0)), False)  # 40
sketch4.addGeometry(Part.LineSegment(App.Vector(24.181818, 8.961039, 0), App.Vector(24.181818, 7.922078, 0)), False)  # 41
sketch4.addGeometry(Part.LineSegment(App.Vector(24.181818, 7.922078, 0), App.Vector(32.285714, 7.922078, 0)), False)  # 42
sketch4.addGeometry(Part.LineSegment(App.Vector(32.285714, 7.922078, 0), App.Vector(32.285714, 8.961039, 0)), False)  # 43
sketch4.addGeometry(Part.LineSegment(App.Vector(32.285714, 8.961039, 0), App.Vector(29.517857, 8.961039, 0)), False)  # 44
sketch4.addGeometry(Part.BSplineCurve([App.Vector(30.103896, 10.550325, 0), App.Vector(30.101958, 10.473402, 0), App.Vector(30.098136, 10.321763, 0), App.Vector(30.069944, 10.099048, 0), App.Vector(30.024643, 9.885538, 0), App.Vector(29.961679, 9.681234, 0), App.Vector(29.877748, 9.487089, 0), App.Vector(29.776995, 9.301656, 0), App.Vector(29.658184, 9.124228, 0), App.Vector(29.565008, 9.015871, 0), App.Vector(29.517857, 8.961039, 0)], [4, 1, 1, 1, 1, 1, 1, 1, 4], [0, 1.064402764, 2.098279994, 3.101513528, 4.082158303, 5.051759688, 6.023614418, 6.999874063, 8], False, 3, [1, 1, 1, 1, 1, 1, 1, 1, 1, 1, 1], False), False)  # 45
sketch4.addGeometry(Part.BSplineCurve([App.Vector(27.042208, 13.012987, 0), App.Vector(27.157541, 13.010764, 0), App.Vector(27.382189, 13.006434, 0), App.Vector(27.709535, 12.974052, 0), App.Vector(28.017782, 12.918849, 0), App.Vector(28.307816, 12.842667, 0), App.Vector(28.580204, 12.746008, 0), App.Vector(28.833598, 12.625035, 0), App.Vector(29.068201, 12.482094, 0), App.Vector(29.282095, 12.317693, 0), App.Vector(29.474911, 12.138602, 0), App.Vector(29.643383, 11.946245, 0), App.Vector(29.785902, 11.742265, 0), App.Vector(29.901915, 11.525799, 0), App.Vector(29.9937, 11.298533, 0), App.Vector(30.056331, 11.058395, 0), App.Vector(30.096797, 10.808192, 0), App.Vector(30.101508, 10.637064, 0), App.Vector(30.103896, 10.550325, 0)], [4, 1, 1, 1, 1, 1, 1, 1, 1, 1, 1, 1, 1, 1, 1, 1, 4], [0, 1.255961248, 2.446374192, 3.578096896, 4.663065679, 5.708848904, 6.721082169, 7.715645011, 8.695165174, 9.654207175, 10.577283402, 11.474815653, 12.358130333, 13.246756847, 14.137354944, 15.05588606, 16], False, 3, [1, 1, 1, 1, 1, 1, 1, 1, 1, 1, 1, 1, 1, 1, 1, 1, 1, 1, 1], False), False)  # 46
sketch4.addGeometry(Part.BSplineCurve([App.Vector(24.077922, 10.621753, 0), App.Vector(24.080388, 10.714421, 0), App.Vector(24.085198, 10.895126, 0), App.Vector(24.123412, 11.157861, 0), App.Vector(24.184307, 11.404871, 0), App.Vector(24.272255, 11.635752, 0), App.Vector(24.387154, 11.849111, 0), App.Vector(24.524114, 12.048006, 0), App.Vector(24.688142, 12.229329, 0), App.Vector(24.877059, 12.392597, 0), App.Vector(25.086655, 12.538798, 0), App.Vector(25.315305, 12.664834, 0), App.Vector(25.559505, 12.774983, 0), App.Vector(25.822561, 12.861856, 0), App.Vector(26.102717, 12.930025, 0), App.Vector(26.400708, 12.978029, 0), App.Vector(26.715845, 13.007721, 0), App.Vector(26.931751, 13.011205, 0), App.Vector(27.042208, 13.012987, 0)], [4, 1, 1, 1, 1, 1, 1, 1, 1, 1, 1, 1, 1, 1, 1, 1, 4], [0, 1.032558834, 2.013531219, 2.952724632, 3.863440268, 4.759334089, 5.647806176, 6.548963813, 7.476698465, 8.425450168, 9.392113565, 10.383030705, 11.407311388, 12.475256329, 13.593801989, 14.76898917, 16], False, 3, [1, 1, 1, 1, 1, 1, 1, 1, 1, 1, 1, 1, 1, 1, 1, 1, 1, 1, 1], False), False)  # 47
sketch4.addGeometry(Part.LineSegment(App.Vector(28.582792, 8.961039, 0), App.Vector(25.883117, 8.961039, 0)), False)  # 48
sketch4.addGeometry(Part.BSplineCurve([App.Vector(24.909091, 10.545455, 0), App.Vector(24.911598, 10.47374, 0), App.Vector(24.916628, 10.329829, 0), App.Vector(24.967176, 10.118413, 0), App.Vector(25.041628, 9.910177, 0), App.Vector(25.150533, 9.709115, 0), App.Vector(25.288801, 9.511868, 0), App.Vector(25.458547, 9.321891, 0), App.Vector(25.656752, 9.134222, 0), App.Vector(25.80568, 9.020283, 0), App.Vector(25.883117, 8.961039, 0)], [4, 1, 1, 1, 1, 1, 1, 1, 4], [0, 0.889314606, 1.784603949, 2.686204335, 3.630395475, 4.614970347, 5.672211878, 6.789640565, 8], False, 3, [1, 1, 1, 1, 1, 1, 1, 1, 1, 1, 1], False), False)  # 49
sketch4.addGeometry(Part.BSplineCurve([App.Vector(27.045455, 11.974026, 0), App.Vector(26.960488, 11.972475, 0), App.Vector(26.79581, 11.96947, 0), App.Vector(26.55646, 11.955038, 0), App.Vector(26.334058, 11.922691, 0), App.Vector(26.126274, 11.883839, 0), App.Vector(25.935304, 11.829228, 0), App.Vector(25.757782, 11.767879, 0), App.Vector(25.598801, 11.688162, 0), App.Vector(25.452905, 11.601578, 0), App.Vector(25.325039, 11.502173, 0), App.Vector(25.212168, 11.394718, 0), App.Vector(25.119935, 11.274953, 0), App.Vector(25.042443, 11.147275, 0), App.Vector(24.981985, 11.010401, 0), App.Vector(24.939903, 10.863481, 0), App.Vector(24.913105, 10.707695, 0), App.Vector(24.910446, 10.60022, 0), App.Vector(24.909091, 10.545455, 0)], [4, 1, 1, 1, 1, 1, 1, 1, 1, 1, 1, 1, 1, 1, 1, 1, 4], [0, 1.408584611, 2.730069766, 3.970578609, 5.131496849, 6.230442265, 7.260312358, 8.239039861, 9.17271741, 10.067908288, 10.917833178, 11.748516327, 12.565283383, 13.388525032, 14.22012764, 15.093025089, 16], False, 3, [1, 1, 1, 1, 1, 1, 1, 1, 1, 1, 1, 1, 1, 1, 1, 1, 1, 1, 1], False), False)  # 50
sketch4.addGeometry(Part.BSplineCurve([App.Vector(29.272727, 10.5, 0), App.Vector(29.271565, 10.555333, 0), App.Vector(29.269293, 10.663491, 0), App.Vector(29.23984, 10.820741, 0), App.Vector(29.196497, 10.969003, 0), App.Vector(29.136258, 11.10949, 0), App.Vector(29.055237, 11.239256, 0), App.Vector(28.95945, 11.362311, 0), App.Vector(28.844022, 11.474749, 0), App.Vector(28.712203, 11.578372, 0), App.Vector(28.563995, 11.67342, 0), App.Vector(28.397123, 11.754505, 0), App.Vector(28.212848, 11.821562, 0), App.Vector(28.013017, 11.879403, 0), App.Vector(27.794752, 11.919663, 0), App.Vector(27.560429, 11.953303, 0), App.Vector(27.308138, 11.969922, 0), App.Vector(27.134758, 11.972631, 0), App.Vector(27.045455, 11.974026, 0)], [4, 1, 1, 1, 1, 1, 1, 1, 1, 1, 1, 1, 1, 1, 1, 1, 4], [0, 0.883090077, 1.726152498, 2.546968976, 3.348612605, 4.159853212, 4.985030933, 5.834983544, 6.727674538, 7.660828743, 8.643132597, 9.685597177, 10.791445765, 11.963314957, 13.229053737, 14.572765964, 16], False, 3, [1, 1, 1, 1, 1, 1, 1, 1, 1, 1, 1, 1, 1, 1, 1, 1, 1, 1, 1], False), False)  # 51
sketch4.addGeometry(Part.BSplineCurve([App.Vector(28.582792, 8.961039, 0), App.Vector(28.638068, 9.016806, 0), App.Vector(28.746272, 9.125973, 0), App.Vector(28.886049, 9.304683, 0), App.Vector(29.005526, 9.488624, 0), App.Vector(29.103534, 9.678759, 0), App.Vector(29.178839, 9.875398, 0), App.Vector(29.232422, 10.077816, 0), App.Vector(29.266023, 10.286764, 0), App.Vector(29.270478, 10.428446, 0), App.Vector(29.272727, 10.5, 0)], [4, 1, 1, 1, 1, 1, 1, 1, 4], [0, 1.085707992, 2.125304366, 3.132607823, 4.117140125, 5.079411284, 6.040195589, 7.010242569, 8], False, 3, [1, 1, 1, 1, 1, 1, 1, 1, 1, 1, 1], False), False)  # 52
sketch4.addConstraint([
    Sketcher.Constraint("Block", 13),
    Sketcher.Constraint("Block", 14),
    Sketcher.Constraint("Block", 15),
    Sketcher.Constraint("Block", 16),
    Sketcher.Constraint("Block", 17),
    Sketcher.Constraint("Block", 19),
    Sketcher.Constraint("Block", 20),
    Sketcher.Constraint("Block", 21),
    Sketcher.Constraint("Block", 22),
    Sketcher.Constraint("Block", 23),
    Sketcher.Constraint("Block", 39),
    Sketcher.Constraint("Block", 45),
    Sketcher.Constraint("Block", 46),
    Sketcher.Constraint("Block", 47),
    Sketcher.Constraint("Block", 49),
    Sketcher.Constraint("Block", 50),
    Sketcher.Constraint("Block", 51),
    Sketcher.Constraint("Block", 52),
    Sketcher.Constraint("Coincident", 17, 1, 18, 1),
    Sketcher.Constraint("Coincident", 18, 2, 19, 2),
    Sketcher.Constraint("Coincident", 23, 1, 24, 1),
    Sketcher.Constraint("Coincident", 24, 2, 13, 2),
    Sketcher.Constraint("Coincident", 39, 1, 40, 1),
    Sketcher.Constraint("Coincident", 40, 2, 41, 1),
    Sketcher.Constraint("Coincident", 41, 2, 42, 1),
    Sketcher.Constraint("Coincident", 42, 2, 43, 1),
    Sketcher.Constraint("Coincident", 43, 2, 44, 1),
    Sketcher.Constraint("Coincident", 44, 2, 45, 2),
    Sketcher.Constraint("Coincident", 48, 2, 49, 2),
    Sketcher.Constraint("Coincident", 52, 1, 48, 1),
    Sketcher.Constraint("Vertical", 0),
    Sketcher.Constraint("Horizontal", 1),
    Sketcher.Constraint("Vertical", 2),
    Sketcher.Constraint("Vertical", 5),
    Sketcher.Constraint("Horizontal", 6),
    Sketcher.Constraint("Vertical", 7),
    Sketcher.Constraint("Horizontal", 8),
    Sketcher.Constraint("Vertical", 10),
    Sketcher.Constraint("Horizontal", 12),
    Sketcher.Constraint("Vertical", 25),
    Sketcher.Constraint("Horizontal", 26),
    Sketcher.Constraint("Vertical", 27),
    Sketcher.Constraint("Horizontal", 28),
    Sketcher.Constraint("Vertical", 29),
    Sketcher.Constraint("Horizontal", 31),
    Sketcher.Constraint("Vertical", 32),
    Sketcher.Constraint("Horizontal", 33),
    Sketcher.Constraint("Vertical", 34),
    Sketcher.Constraint("Horizontal", 35),
    Sketcher.Constraint("Vertical", 36),
    Sketcher.Constraint("Horizontal", 38),
    Sketcher.Constraint("Horizontal", 40),
    Sketcher.Constraint("Vertical", 41),
    Sketcher.Constraint("Horizontal", 42),
    Sketcher.Constraint("Vertical", 43),
    Sketcher.Constraint("Horizontal", 44),
    Sketcher.Constraint("Horizontal", 28, 2, 34, 2),
    Sketcher.Constraint("Horizontal", 33, 2, 37, 2),
    Sketcher.Constraint("Vertical", 2, 2, 4, 2),
    Sketcher.Constraint("Vertical", 0, 2, 6, 2),
    Sketcher.Constraint("Vertical", 7, 2, 9, 2),
    Sketcher.Constraint("Vertical", 8, 2, 11, 2),
    Sketcher.Constraint("Vertical", 27, 2, 30, 2),
    Sketcher.Constraint("Vertical", 25, 2, 31, 2),
    Sketcher.Constraint("Vertical", 12, 2, 33, 2),
    Sketcher.Constraint("Vertical", 30, 2, 36, 2),
    Sketcher.Constraint("Equal", 2, 5),
    Sketcher.Constraint("Equal", 0, 7),
    Sketcher.Constraint("Equal", 7, 18),
    Sketcher.Constraint("Equal", 24, 25),
    Sketcher.Constraint("Equal", 27, 34),
    Sketcher.Constraint("Equal", 34, 41),
    Sketcher.Constraint("Equal", 9, 11),
    Sketcher.Constraint("DistanceX", 1, 2, 1, 1, 8.0),
    Sketcher.Constraint("DistanceX", -1, 1, 0, 2, 30.0),
    Sketcher.Constraint("DistanceY", 2, 2, 2, 1, 1.625),
    Sketcher.Constraint("DistanceX", 26, 2, 26, 1, 0.831169),
    Sketcher.Constraint("DistanceX", 33, 1, 33, 2, 1.87013),
    Sketcher.Constraint("DistanceX", 40, 2, 40, 1, 0.696429),
    Sketcher.Constraint("DistanceY", 10, 1, 10, 2, 0.931818),
    Sketcher.Constraint("DistanceY", 29, 2, 29, 1, 0.813312),
    Sketcher.Constraint("DistanceY", 32, 1, 32, 2, 3.428571),
    Sketcher.Constraint("DistanceY", 12, 2, 25, 2, 13.298701),
    Sketcher.Constraint("DistanceY", 18, 2, 27, 2, 5.298701),
    Sketcher.Constraint("DistanceX", 8, 2, 8, 1, 6.805195),
    Sketcher.Constraint("DistanceX", 28, 2, 28, 1, 5.402597),
    Sketcher.Constraint("DistanceX", 38, 1, 38, 2, 3.650974),
    Sketcher.Constraint("DistanceX", 42, 1, 42, 2, 8.103896),
    Sketcher.Constraint("DistanceY", 36, 2, 36, 1, 2.469156),
    Sketcher.Constraint("DistanceX", -1, 1, 3, 2, 28.668831),
    Sketcher.Constraint("DistanceY", 3, 2, 0, 2, 3.74513),
    Sketcher.Constraint("DistanceY", 4, 2, 2, 2, 4.230519),
])
sketch4.setExpression("Constraints[100]", "Params.sketch4_width")
pocket2 = doc.addObject("PartDesign::Pocket", "Pocket001")
body.addObject(pocket2)
pocket2.Profile = sketch4
pocket2.setExpression("Length", "Params.pocket2_length")
doc.recompute()

chamfer = doc.addObject("PartDesign::Chamfer", "Chamfer")
body.addObject(chamfer)
chamfer.Base = (pocket2, edges_at(pocket2, [
    (-17.5, 3, -33),
    (-17.5, 3, 27),
    (33.5, 3, 27),
    (33.5, 3, -33),
    (-13.7, 3, 10.275),
    (-10.4, 3, 0),
    (-13.7, 3, -10.275),
    (-17, 3, 0),
    (-3.697, 3, -17.537),
    (-4.21, 3, 0),
    (-3.697, 3, 17.537),
    (0, 3, 18.05),
    (3.697, 3, 17.537),
    (4.21, 3, 0),
    (3.697, 3, -17.537),
    (0, 3, -18.05),
    (17, 3, 0),
    (13.7, 3, -10.275),
    (10.4, 3, 0),
    (13.7, 3, 10.275),
]))
chamfer.setExpression("Size", "Params.chamfer_size")
doc.recompute()

chamfer2 = doc.addObject("PartDesign::Chamfer", "Chamfer001")
body.addObject(chamfer2)
chamfer2.Base = (chamfer, edges_at(chamfer, [
    (8, 0, 35),
    (-22.5, 0, 0),
    (41, -0.8, -32.5),
    (43.938, -0.8, -31),
    (43.938, -0.8, 31),
    (41, -0.8, 32.5),
    (8, 0, -35),
]))
chamfer2.setExpression("Size", "Params.chamfer2_size")

doc.recompute()
